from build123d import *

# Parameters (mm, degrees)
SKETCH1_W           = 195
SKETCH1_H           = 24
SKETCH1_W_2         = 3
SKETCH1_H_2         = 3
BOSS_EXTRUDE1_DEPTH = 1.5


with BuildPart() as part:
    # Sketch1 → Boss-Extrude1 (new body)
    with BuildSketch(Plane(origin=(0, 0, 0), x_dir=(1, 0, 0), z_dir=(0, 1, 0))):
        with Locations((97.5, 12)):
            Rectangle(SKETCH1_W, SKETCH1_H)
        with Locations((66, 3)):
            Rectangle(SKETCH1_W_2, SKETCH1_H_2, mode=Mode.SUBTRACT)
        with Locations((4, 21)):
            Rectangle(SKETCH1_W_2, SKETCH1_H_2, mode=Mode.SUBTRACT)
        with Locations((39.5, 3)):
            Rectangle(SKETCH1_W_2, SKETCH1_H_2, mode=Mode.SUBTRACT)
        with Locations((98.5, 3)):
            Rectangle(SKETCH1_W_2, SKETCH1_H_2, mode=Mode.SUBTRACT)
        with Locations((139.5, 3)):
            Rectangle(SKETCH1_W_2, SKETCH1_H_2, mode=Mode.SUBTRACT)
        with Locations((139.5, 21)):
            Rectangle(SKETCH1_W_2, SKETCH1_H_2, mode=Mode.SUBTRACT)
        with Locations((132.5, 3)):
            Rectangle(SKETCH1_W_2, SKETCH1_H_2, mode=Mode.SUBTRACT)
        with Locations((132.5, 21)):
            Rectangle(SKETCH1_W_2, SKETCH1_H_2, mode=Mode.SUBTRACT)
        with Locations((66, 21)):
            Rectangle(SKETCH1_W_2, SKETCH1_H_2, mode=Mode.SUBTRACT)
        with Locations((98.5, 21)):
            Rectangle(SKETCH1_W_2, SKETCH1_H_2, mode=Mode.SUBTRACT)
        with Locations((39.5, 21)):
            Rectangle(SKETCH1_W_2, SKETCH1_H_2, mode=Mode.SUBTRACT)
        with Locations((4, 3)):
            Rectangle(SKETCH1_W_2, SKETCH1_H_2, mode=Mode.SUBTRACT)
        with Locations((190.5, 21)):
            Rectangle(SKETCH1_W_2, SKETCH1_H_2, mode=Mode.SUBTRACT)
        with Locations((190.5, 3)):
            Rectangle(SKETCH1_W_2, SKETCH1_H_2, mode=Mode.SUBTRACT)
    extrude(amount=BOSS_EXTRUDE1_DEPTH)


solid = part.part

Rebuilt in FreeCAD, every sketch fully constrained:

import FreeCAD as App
import Part
import Sketcher
from FreeCAD import Vector
Q = App.Units.Quantity


def add_polygon(sketch, points):
    """Adds a closed chain of lines whose ends are joined by coincident constraints."""
    first, n = sketch.GeometryCount, len(points)
    for a, b in zip(points, points[1:] + points[:1]):
        sketch.addGeometry(Part.LineSegment(App.Vector(*a, 0), App.Vector(*b, 0)), False)
    for i in range(n):
        sketch.addConstraint(Sketcher.Constraint("Coincident", first + i, 2, first + (i + 1) % n, 1))

doc = App.newDocument("Part")
body = doc.addObject("PartDesign::Body", "Body")

# Sketch on XZ plane
sketch1 = body.newObject("Sketcher::SketchObject", "Sketch")
sketch1.AttachmentSupport = (doc.getObject("XZ_Plane"), [""])
sketch1.MapMode = "FlatFace"
add_polygon(sketch1, [(0, -24), (0, 0), (195, 0), (195, -24)])  # lines 0-3
add_polygon(sketch1, [(5.5, -1.5), (2.5, -1.5), (2.5, -4.5), (5.5, -4.5)])  # lines 4-7
add_polygon(sketch1, [(41, -1.5), (38, -1.5), (38, -4.5), (41, -4.5)])  # lines 8-11
add_polygon(sketch1, [(67.5, -1.5), (64.5, -1.5), (64.5, -4.5), (67.5, -4.5)])  # lines 12-15
add_polygon(sketch1, [(100, -1.5), (97, -1.5), (97, -4.5), (100, -4.5)])  # lines 16-19
add_polygon(sketch1, [(134, -1.5), (131, -1.5), (131, -4.5), (134, -4.5)])  # lines 20-23
add_polygon(sketch1, [(141, -1.5), (138, -1.5), (138, -4.5), (141, -4.5)])  # lines 24-27
add_polygon(sketch1, [(192, -1.5), (189, -1.5), (189, -4.5), (192, -4.5)])  # lines 28-31
add_polygon(sketch1, [(5.5, -19.5), (2.5, -19.5), (2.5, -22.5), (5.5, -22.5)])  # lines 32-35
add_polygon(sketch1, [(41, -19.5), (38, -19.5), (38, -22.5), (41, -22.5)])  # lines 36-39
add_polygon(sketch1, [(67.5, -19.5), (64.5, -19.5), (64.5, -22.5), (67.5, -22.5)])  # lines 40-43
add_polygon(sketch1, [(100, -19.5), (97, -19.5), (97, -22.5), (100, -22.5)])  # lines 44-47
add_polygon(sketch1, [(134, -19.5), (131, -19.5), (131, -22.5), (134, -22.5)])  # lines 48-51
add_polygon(sketch1, [(141, -19.5), (138, -19.5), (138, -22.5), (141, -22.5)])  # lines 52-55
add_polygon(sketch1, [(192, -19.5), (189, -19.5), (189, -22.5), (192, -22.5)])  # lines 56-59
sketch1.addConstraint(Sketcher.Constraint("Vertical", 0))
sketch1.addConstraint(Sketcher.Constraint("Horizontal", 1))
sketch1.addConstraint(Sketcher.Constraint("Vertical", 2))
sketch1.addConstraint(Sketcher.Constraint("Horizontal", 3))
sketch1.addConstraint(Sketcher.Constraint("Horizontal", 4))
sketch1.addConstraint(Sketcher.Constraint("Vertical", 5))
sketch1.addConstraint(Sketcher.Constraint("Horizontal", 6))
sketch1.addConstraint(Sketcher.Constraint("Vertical", 7))
sketch1.addConstraint(Sketcher.Constraint("Horizontal", 8))
sketch1.addConstraint(Sketcher.Constraint("Vertical", 9))
sketch1.addConstraint(Sketcher.Constraint("Horizontal", 10))
sketch1.addConstraint(Sketcher.Constraint("Vertical", 11))
sketch1.addConstraint(Sketcher.Constraint("Horizontal", 12))
sketch1.addConstraint(Sketcher.Constraint("Vertical", 13))
sketch1.addConstraint(Sketcher.Constraint("Horizontal", 14))
sketch1.addConstraint(Sketcher.Constraint("Vertical", 15))
sketch1.addConstraint(Sketcher.Constraint("Horizontal", 16))
sketch1.addConstraint(Sketcher.Constraint("Vertical", 17))
sketch1.addConstraint(Sketcher.Constraint("Horizontal", 18))
sketch1.addConstraint(Sketcher.Constraint("Vertical", 19))
sketch1.addConstraint(Sketcher.Constraint("Horizontal", 20))
sketch1.addConstraint(Sketcher.Constraint("Vertical", 21))
sketch1.addConstraint(Sketcher.Constraint("Horizontal", 22))
sketch1.addConstraint(Sketcher.Constraint("Vertical", 23))
sketch1.addConstraint(Sketcher.Constraint("Horizontal", 24))
sketch1.addConstraint(Sketcher.Constraint("Vertical", 25))
sketch1.addConstraint(Sketcher.Constraint("Horizontal", 26))
sketch1.addConstraint(Sketcher.Constraint("Vertical", 27))
sketch1.addConstraint(Sketcher.Constraint("Horizontal", 28))
sketch1.addConstraint(Sketcher.Constraint("Vertical", 29))
sketch1.addConstraint(Sketcher.Constraint("Horizontal", 30))
sketch1.addConstraint(Sketcher.Constraint("Vertical", 31))
sketch1.addConstraint(Sketcher.Constraint("Horizontal", 32))
sketch1.addConstraint(Sketcher.Constraint("Vertical", 33))
sketch1.addConstraint(Sketcher.Constraint("Horizontal", 34))
sketch1.addConstraint(Sketcher.Constraint("Vertical", 35))
sketch1.addConstraint(Sketcher.Constraint("Horizontal", 36))
sketch1.addConstraint(Sketcher.Constraint("Vertical", 37))
sketch1.addConstraint(Sketcher.Constraint("Horizontal", 38))
sketch1.addConstraint(Sketcher.Constraint("Vertical", 39))
sketch1.addConstraint(Sketcher.Constraint("Horizontal", 40))
sketch1.addConstraint(Sketcher.Constraint("Vertical", 41))
sketch1.addConstraint(Sketcher.Constraint("Horizontal", 42))
sketch1.addConstraint(Sketcher.Constraint("Vertical", 43))
sketch1.addConstraint(Sketcher.Constraint("Horizontal", 44))
sketch1.addConstraint(Sketcher.Constraint("Vertical", 45))
sketch1.addConstraint(Sketcher.Constraint("Horizontal", 46))
sketch1.addConstraint(Sketcher.Constraint("Vertical", 47))
sketch1.addConstraint(Sketcher.Constraint("Horizontal", 48))
sketch1.addConstraint(Sketcher.Constraint("Vertical", 49))
sketch1.addConstraint(Sketcher.Constraint("Horizontal", 50))
sketch1.addConstraint(Sketcher.Constraint("Vertical", 51))
sketch1.addConstraint(Sketcher.Constraint("Horizontal", 52))
sketch1.addConstraint(Sketcher.Constraint("Vertical", 53))
sketch1.addConstraint(Sketcher.Constraint("Horizontal", 54))
sketch1.addConstraint(Sketcher.Constraint("Vertical", 55))
sketch1.addConstraint(Sketcher.Constraint("Horizontal", 56))
sketch1.addConstraint(Sketcher.Constraint("Vertical", 57))
sketch1.addConstraint(Sketcher.Constraint("Horizontal", 58))
sketch1.addConstraint(Sketcher.Constraint("Vertical", 59))
sketch1.addConstraint(Sketcher.Constraint("Coincident", 0, 2, -1, 1))
sketch1.addConstraint(Sketcher.Constraint("Horizontal", 7, 2, 8, 2))
sketch1.addConstraint(Sketcher.Constraint("Horizontal", 6, 2, 9, 2))
sketch1.addConstraint(Sketcher.Constraint("Horizontal", 11, 2, 12, 2))
sketch1.addConstraint(Sketcher.Constraint("Horizontal", 10, 2, 13, 2))
sketch1.addConstraint(Sketcher.Constraint("Horizontal", 15, 2, 16, 2))
sketch1.addConstraint(Sketcher.Constraint("Horizontal", 14, 2, 17, 2))
sketch1.addConstraint(Sketcher.Constraint("Horizontal", 19, 2, 20, 2))
sketch1.addConstraint(Sketcher.Constraint("Horizontal", 18, 2, 21, 2))
sketch1.addConstraint(Sketcher.Constraint("Horizontal", 23, 2, 24, 2))
sketch1.addConstraint(Sketcher.Constraint("Horizontal", 22, 2, 25, 2))
sketch1.addConstraint(Sketcher.Constraint("Horizontal", 27, 2, 28, 2))
sketch1.addConstraint(Sketcher.Constraint("Horizontal", 26, 2, 29, 2))
sketch1.addConstraint(Sketcher.Constraint("Horizontal", 35, 2, 36, 2))
sketch1.addConstraint(Sketcher.Constraint("Horizontal", 34, 2, 37, 2))
sketch1.addConstraint(Sketcher.Constraint("Horizontal", 39, 2, 40, 2))
sketch1.addConstraint(Sketcher.Constraint("Horizontal", 38, 2, 41, 2))
sketch1.addConstraint(Sketcher.Constraint("Horizontal", 43, 2, 44, 2))
sketch1.addConstraint(Sketcher.Constraint("Horizontal", 42, 2, 45, 2))
sketch1.addConstraint(Sketcher.Constraint("Horizontal", 47, 2, 48, 2))
sketch1.addConstraint(Sketcher.Constraint("Horizontal", 46, 2, 49, 2))
sketch1.addConstraint(Sketcher.Constraint("Horizontal", 51, 2, 52, 2))
sketch1.addConstraint(Sketcher.Constraint("Horizontal", 50, 2, 53, 2))
sketch1.addConstraint(Sketcher.Constraint("Horizontal", 55, 2, 56, 2))
sketch1.addConstraint(Sketcher.Constraint("Horizontal", 54, 2, 57, 2))
sketch1.addConstraint(Sketcher.Constraint("Vertical", 5, 2, 32, 2))
sketch1.addConstraint(Sketcher.Constraint("Vertical", 7, 2, 34, 2))
sketch1.addConstraint(Sketcher.Constraint("Vertical", 9, 2, 36, 2))
sketch1.addConstraint(Sketcher.Constraint("Vertical", 11, 2, 38, 2))
sketch1.addConstraint(Sketcher.Constraint("Vertical", 13, 2, 40, 2))
sketch1.addConstraint(Sketcher.Constraint("Vertical", 15, 2, 42, 2))
sketch1.addConstraint(Sketcher.Constraint("Vertical", 17, 2, 44, 2))
sketch1.addConstraint(Sketcher.Constraint("Vertical", 19, 2, 46, 2))
sketch1.addConstraint(Sketcher.Constraint("Vertical", 21, 2, 48, 2))
sketch1.addConstraint(Sketcher.Constraint("Vertical", 23, 2, 50, 2))
sketch1.addConstraint(Sketcher.Constraint("Vertical", 25, 2, 52, 2))
sketch1.addConstraint(Sketcher.Constraint("Vertical", 27, 2, 54, 2))
sketch1.addConstraint(Sketcher.Constraint("Vertical", 29, 2, 56, 2))
sketch1.addConstraint(Sketcher.Constraint("Vertical", 31, 2, 58, 2))
sketch1.addConstraint(Sketcher.Constraint("Equal", 6, 8))
sketch1.addConstraint(Sketcher.Constraint("Equal", 10, 12))
sketch1.addConstraint(Sketcher.Constraint("Equal", 14, 16))
sketch1.addConstraint(Sketcher.Constraint("Equal", 18, 20))
sketch1.addConstraint(Sketcher.Constraint("Equal", 22, 24))
sketch1.addConstraint(Sketcher.Constraint("Equal", 26, 28))
sketch1.addConstraint(Sketcher.Constraint("Equal", 58, 5))
sketch1.addConstraint(Sketcher.Constraint("Equal", 31, 33))
sketch1.addConstraint(Sketcher.Constraint("DistanceX", 1, 1, 1, 2, Q("195 mm")))
sketch1.addConstraint(Sketcher.Constraint("DistanceX", 4, 2, 4, 1, Q("3 mm")))
sketch1.addConstraint(Sketcher.Constraint("DistanceY", 0, 1, 0, 2, Q("24 mm")))
sketch1.addConstraint(Sketcher.Constraint("DistanceX", -1, 1, 8, 2, Q("38 mm")))
sketch1.addConstraint(Sketcher.Constraint("DistanceX", -1, 1, 16, 2, Q("97 mm")))
sketch1.addConstraint(Sketcher.Constraint("DistanceX", -1, 1, 20, 2, Q("131 mm")))
sketch1.addConstraint(Sketcher.Constraint("DistanceX", -1, 1, 24, 2, Q("138 mm")))
sketch1.addConstraint(Sketcher.Constraint("DistanceX", -1, 1, 28, 2, Q("189 mm")))
sketch1.addConstraint(Sketcher.Constraint("DistanceX", 7, 2, 12, 2, Q("59 mm")))
sketch1.addConstraint(Sketcher.Constraint("DistanceY", 32, 2, 5, 2, Q("15 mm")))
sketch1.addConstraint(Sketcher.Constraint("DistanceX", -1, 1, 4, 2, Q("2.5 mm")))
sketch1.addConstraint(Sketcher.Constraint("DistanceY", 4, 2, -1, 1, Q("1.5 mm")))
pad1 = body.newObject("PartDesign::Pad", "Pad")
pad1.Profile = sketch1
pad1.Length = 1.5
pad1.Reversed = True

doc.recompute()
